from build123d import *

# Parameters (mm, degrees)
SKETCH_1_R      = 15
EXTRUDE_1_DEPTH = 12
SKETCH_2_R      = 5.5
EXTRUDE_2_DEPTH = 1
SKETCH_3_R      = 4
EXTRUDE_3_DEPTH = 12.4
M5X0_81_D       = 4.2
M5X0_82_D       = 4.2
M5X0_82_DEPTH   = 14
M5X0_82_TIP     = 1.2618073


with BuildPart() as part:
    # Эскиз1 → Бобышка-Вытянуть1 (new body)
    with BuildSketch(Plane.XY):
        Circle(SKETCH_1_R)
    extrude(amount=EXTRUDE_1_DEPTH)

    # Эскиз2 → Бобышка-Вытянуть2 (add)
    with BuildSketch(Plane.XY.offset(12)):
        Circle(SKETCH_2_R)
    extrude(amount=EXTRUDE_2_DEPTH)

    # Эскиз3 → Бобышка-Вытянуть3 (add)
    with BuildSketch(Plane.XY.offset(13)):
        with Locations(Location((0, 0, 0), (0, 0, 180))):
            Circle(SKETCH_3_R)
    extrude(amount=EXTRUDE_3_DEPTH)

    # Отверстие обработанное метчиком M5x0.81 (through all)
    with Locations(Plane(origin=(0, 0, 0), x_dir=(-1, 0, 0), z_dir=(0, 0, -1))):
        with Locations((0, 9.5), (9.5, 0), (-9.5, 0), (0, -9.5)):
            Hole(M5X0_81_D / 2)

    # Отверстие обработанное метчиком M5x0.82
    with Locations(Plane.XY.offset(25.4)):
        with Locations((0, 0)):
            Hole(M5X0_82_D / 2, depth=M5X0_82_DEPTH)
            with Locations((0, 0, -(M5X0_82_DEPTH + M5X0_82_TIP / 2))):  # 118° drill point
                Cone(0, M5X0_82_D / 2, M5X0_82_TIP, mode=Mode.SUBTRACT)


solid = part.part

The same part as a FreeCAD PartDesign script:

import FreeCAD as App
import Part
import Sketcher

V = App.Vector

doc = App.newDocument("Part")
body = doc.addObject("PartDesign::Body", "Body")

sketch1 = doc.addObject("Sketcher::SketchObject", "Sketch")
body.addObject(sketch1)
sketch1.AttachmentSupport = (doc.XY_Plane, [""])
sketch1.MapMode = "FlatFace"
sketch1.addGeometry(Part.Circle(V(0, 0, 0), V(0, 0, 1), 15), False)
sketch1.addConstraint([
    Sketcher.Constraint("Coincident", 0, 3, -1, 1),
    Sketcher.Constraint("Diameter", 0, 30.0),
])
pad1 = doc.addObject("PartDesign::Pad", "Pad")
body.addObject(pad1)
pad1.Profile = sketch1
pad1.Length = 12

sketch2 = doc.addObject("Sketcher::SketchObject", "Sketch001")
body.addObject(sketch2)
sketch2.AttachmentSupport = (doc.XY_Plane, [""])
sketch2.MapMode = "FlatFace"
sketch2.AttachmentOffset = App.Placement(V(0, 0, 12), App.Rotation())
sketch2.addGeometry(Part.Circle(V(0, 0, 0), V(0, 0, 1), 6), False)
sketch2.addConstraint([
    Sketcher.Constraint("Coincident", 0, 3, -1, 1),
    Sketcher.Constraint("Diameter", 0, 11.0),
])
pad2 = doc.addObject("PartDesign::Pad", "Pad001")
body.addObject(pad2)
pad2.Profile = sketch2
pad2.Length = 1

sketch3 = doc.addObject("Sketcher::SketchObject", "Sketch002")
body.addObject(sketch3)
sketch3.AttachmentSupport = (doc.XY_Plane, [""])
sketch3.MapMode = "FlatFace"
sketch3.AttachmentOffset = App.Placement(V(0, 0, 13), App.Rotation())
sketch3.addGeometry(Part.Circle(V(0, 0, 0), V(0, 0, 1), 4), False)
sketch3.addConstraint([
    Sketcher.Constraint("Coincident", 0, 3, -1, 1),
    Sketcher.Constraint("Diameter", 0, 8.0),
])
pad3 = doc.addObject("PartDesign::Pad", "Pad002")
body.addObject(pad3)
pad3.Profile = sketch3
pad3.Length = 12.4

sketch4 = doc.addObject("Sketcher::SketchObject", "Sketch003")
body.addObject(sketch4)
sketch4.AttachmentSupport = (doc.XY_Plane, [""])
sketch4.MapMode = "FlatFace"
sketch4.addGeometry([
    Part.Circle(V(0, 9.5, 0), V(0, 0, 1), 2.1),
    Part.Circle(V(-9.5, 0, 0), V(0, 0, 1), 2.1),
    Part.Circle(V(9.5, 0, 0), V(0, 0, 1), 2.1),
    Part.Circle(V(0, -9.5, 0), V(0, 0, 1), 2.1),
], False)
sketch4.addConstraint([
    Sketcher.Constraint("Equal", 0, 1),
    Sketcher.Constraint("Equal", 1, 2),
    Sketcher.Constraint("Equal", 2, 3),
    Sketcher.Constraint("Symmetric", 1, 3, 2, 3, -1, 1),
    Sketcher.Constraint("Symmetric", 0, 3, 3, 3, -1, 1),
    Sketcher.Constraint("PointOnObject", 0, 3, -2),
    Sketcher.Constraint("PointOnObject", 1, 3, -1),
    Sketcher.Constraint("Diameter", 0, 4.2),
    Sketcher.Constraint("DistanceX", 1, 3, 2, 3, 19.0),
    Sketcher.Constraint("DistanceY", 3, 3, 0, 3, 19.0),
])
doc.recompute()
hole = doc.addObject("PartDesign::Hole", "Hole")
body.addObject(hole)
hole.Profile = sketch4
hole.ThreadType = "None"
hole.Diameter = 4.2
hole.DepthType = "ThroughAll"
hole.Reversed = True

sketch5 = doc.addObject("Sketcher::SketchObject", "Sketch004")
body.addObject(sketch5)
sketch5.AttachmentSupport = (doc.XY_Plane, [""])
sketch5.MapMode = "FlatFace"
sketch5.AttachmentOffset = App.Placement(V(0, 0, 25.4), App.Rotation())
sketch5.addGeometry(Part.Circle(V(0, 0, 0), V(0, 0, 1), 2.1), False)
sketch5.addConstraint([
    Sketcher.Constraint("Coincident", 0, 3, -1, 1),
    Sketcher.Constraint("Diameter", 0, 4.2),
])
doc.recompute()
hole2 = doc.addObject("PartDesign::Hole", "Hole001")
body.addObject(hole2)
hole2.Profile = sketch5
hole2.ThreadType = "None"
hole2.Diameter = 4.2
hole2.DepthType = "Dimension"
hole2.Depth = 14
hole2.DrillPoint = "Angled"
hole2.DrillPointAngle = 118

doc.recompute()
